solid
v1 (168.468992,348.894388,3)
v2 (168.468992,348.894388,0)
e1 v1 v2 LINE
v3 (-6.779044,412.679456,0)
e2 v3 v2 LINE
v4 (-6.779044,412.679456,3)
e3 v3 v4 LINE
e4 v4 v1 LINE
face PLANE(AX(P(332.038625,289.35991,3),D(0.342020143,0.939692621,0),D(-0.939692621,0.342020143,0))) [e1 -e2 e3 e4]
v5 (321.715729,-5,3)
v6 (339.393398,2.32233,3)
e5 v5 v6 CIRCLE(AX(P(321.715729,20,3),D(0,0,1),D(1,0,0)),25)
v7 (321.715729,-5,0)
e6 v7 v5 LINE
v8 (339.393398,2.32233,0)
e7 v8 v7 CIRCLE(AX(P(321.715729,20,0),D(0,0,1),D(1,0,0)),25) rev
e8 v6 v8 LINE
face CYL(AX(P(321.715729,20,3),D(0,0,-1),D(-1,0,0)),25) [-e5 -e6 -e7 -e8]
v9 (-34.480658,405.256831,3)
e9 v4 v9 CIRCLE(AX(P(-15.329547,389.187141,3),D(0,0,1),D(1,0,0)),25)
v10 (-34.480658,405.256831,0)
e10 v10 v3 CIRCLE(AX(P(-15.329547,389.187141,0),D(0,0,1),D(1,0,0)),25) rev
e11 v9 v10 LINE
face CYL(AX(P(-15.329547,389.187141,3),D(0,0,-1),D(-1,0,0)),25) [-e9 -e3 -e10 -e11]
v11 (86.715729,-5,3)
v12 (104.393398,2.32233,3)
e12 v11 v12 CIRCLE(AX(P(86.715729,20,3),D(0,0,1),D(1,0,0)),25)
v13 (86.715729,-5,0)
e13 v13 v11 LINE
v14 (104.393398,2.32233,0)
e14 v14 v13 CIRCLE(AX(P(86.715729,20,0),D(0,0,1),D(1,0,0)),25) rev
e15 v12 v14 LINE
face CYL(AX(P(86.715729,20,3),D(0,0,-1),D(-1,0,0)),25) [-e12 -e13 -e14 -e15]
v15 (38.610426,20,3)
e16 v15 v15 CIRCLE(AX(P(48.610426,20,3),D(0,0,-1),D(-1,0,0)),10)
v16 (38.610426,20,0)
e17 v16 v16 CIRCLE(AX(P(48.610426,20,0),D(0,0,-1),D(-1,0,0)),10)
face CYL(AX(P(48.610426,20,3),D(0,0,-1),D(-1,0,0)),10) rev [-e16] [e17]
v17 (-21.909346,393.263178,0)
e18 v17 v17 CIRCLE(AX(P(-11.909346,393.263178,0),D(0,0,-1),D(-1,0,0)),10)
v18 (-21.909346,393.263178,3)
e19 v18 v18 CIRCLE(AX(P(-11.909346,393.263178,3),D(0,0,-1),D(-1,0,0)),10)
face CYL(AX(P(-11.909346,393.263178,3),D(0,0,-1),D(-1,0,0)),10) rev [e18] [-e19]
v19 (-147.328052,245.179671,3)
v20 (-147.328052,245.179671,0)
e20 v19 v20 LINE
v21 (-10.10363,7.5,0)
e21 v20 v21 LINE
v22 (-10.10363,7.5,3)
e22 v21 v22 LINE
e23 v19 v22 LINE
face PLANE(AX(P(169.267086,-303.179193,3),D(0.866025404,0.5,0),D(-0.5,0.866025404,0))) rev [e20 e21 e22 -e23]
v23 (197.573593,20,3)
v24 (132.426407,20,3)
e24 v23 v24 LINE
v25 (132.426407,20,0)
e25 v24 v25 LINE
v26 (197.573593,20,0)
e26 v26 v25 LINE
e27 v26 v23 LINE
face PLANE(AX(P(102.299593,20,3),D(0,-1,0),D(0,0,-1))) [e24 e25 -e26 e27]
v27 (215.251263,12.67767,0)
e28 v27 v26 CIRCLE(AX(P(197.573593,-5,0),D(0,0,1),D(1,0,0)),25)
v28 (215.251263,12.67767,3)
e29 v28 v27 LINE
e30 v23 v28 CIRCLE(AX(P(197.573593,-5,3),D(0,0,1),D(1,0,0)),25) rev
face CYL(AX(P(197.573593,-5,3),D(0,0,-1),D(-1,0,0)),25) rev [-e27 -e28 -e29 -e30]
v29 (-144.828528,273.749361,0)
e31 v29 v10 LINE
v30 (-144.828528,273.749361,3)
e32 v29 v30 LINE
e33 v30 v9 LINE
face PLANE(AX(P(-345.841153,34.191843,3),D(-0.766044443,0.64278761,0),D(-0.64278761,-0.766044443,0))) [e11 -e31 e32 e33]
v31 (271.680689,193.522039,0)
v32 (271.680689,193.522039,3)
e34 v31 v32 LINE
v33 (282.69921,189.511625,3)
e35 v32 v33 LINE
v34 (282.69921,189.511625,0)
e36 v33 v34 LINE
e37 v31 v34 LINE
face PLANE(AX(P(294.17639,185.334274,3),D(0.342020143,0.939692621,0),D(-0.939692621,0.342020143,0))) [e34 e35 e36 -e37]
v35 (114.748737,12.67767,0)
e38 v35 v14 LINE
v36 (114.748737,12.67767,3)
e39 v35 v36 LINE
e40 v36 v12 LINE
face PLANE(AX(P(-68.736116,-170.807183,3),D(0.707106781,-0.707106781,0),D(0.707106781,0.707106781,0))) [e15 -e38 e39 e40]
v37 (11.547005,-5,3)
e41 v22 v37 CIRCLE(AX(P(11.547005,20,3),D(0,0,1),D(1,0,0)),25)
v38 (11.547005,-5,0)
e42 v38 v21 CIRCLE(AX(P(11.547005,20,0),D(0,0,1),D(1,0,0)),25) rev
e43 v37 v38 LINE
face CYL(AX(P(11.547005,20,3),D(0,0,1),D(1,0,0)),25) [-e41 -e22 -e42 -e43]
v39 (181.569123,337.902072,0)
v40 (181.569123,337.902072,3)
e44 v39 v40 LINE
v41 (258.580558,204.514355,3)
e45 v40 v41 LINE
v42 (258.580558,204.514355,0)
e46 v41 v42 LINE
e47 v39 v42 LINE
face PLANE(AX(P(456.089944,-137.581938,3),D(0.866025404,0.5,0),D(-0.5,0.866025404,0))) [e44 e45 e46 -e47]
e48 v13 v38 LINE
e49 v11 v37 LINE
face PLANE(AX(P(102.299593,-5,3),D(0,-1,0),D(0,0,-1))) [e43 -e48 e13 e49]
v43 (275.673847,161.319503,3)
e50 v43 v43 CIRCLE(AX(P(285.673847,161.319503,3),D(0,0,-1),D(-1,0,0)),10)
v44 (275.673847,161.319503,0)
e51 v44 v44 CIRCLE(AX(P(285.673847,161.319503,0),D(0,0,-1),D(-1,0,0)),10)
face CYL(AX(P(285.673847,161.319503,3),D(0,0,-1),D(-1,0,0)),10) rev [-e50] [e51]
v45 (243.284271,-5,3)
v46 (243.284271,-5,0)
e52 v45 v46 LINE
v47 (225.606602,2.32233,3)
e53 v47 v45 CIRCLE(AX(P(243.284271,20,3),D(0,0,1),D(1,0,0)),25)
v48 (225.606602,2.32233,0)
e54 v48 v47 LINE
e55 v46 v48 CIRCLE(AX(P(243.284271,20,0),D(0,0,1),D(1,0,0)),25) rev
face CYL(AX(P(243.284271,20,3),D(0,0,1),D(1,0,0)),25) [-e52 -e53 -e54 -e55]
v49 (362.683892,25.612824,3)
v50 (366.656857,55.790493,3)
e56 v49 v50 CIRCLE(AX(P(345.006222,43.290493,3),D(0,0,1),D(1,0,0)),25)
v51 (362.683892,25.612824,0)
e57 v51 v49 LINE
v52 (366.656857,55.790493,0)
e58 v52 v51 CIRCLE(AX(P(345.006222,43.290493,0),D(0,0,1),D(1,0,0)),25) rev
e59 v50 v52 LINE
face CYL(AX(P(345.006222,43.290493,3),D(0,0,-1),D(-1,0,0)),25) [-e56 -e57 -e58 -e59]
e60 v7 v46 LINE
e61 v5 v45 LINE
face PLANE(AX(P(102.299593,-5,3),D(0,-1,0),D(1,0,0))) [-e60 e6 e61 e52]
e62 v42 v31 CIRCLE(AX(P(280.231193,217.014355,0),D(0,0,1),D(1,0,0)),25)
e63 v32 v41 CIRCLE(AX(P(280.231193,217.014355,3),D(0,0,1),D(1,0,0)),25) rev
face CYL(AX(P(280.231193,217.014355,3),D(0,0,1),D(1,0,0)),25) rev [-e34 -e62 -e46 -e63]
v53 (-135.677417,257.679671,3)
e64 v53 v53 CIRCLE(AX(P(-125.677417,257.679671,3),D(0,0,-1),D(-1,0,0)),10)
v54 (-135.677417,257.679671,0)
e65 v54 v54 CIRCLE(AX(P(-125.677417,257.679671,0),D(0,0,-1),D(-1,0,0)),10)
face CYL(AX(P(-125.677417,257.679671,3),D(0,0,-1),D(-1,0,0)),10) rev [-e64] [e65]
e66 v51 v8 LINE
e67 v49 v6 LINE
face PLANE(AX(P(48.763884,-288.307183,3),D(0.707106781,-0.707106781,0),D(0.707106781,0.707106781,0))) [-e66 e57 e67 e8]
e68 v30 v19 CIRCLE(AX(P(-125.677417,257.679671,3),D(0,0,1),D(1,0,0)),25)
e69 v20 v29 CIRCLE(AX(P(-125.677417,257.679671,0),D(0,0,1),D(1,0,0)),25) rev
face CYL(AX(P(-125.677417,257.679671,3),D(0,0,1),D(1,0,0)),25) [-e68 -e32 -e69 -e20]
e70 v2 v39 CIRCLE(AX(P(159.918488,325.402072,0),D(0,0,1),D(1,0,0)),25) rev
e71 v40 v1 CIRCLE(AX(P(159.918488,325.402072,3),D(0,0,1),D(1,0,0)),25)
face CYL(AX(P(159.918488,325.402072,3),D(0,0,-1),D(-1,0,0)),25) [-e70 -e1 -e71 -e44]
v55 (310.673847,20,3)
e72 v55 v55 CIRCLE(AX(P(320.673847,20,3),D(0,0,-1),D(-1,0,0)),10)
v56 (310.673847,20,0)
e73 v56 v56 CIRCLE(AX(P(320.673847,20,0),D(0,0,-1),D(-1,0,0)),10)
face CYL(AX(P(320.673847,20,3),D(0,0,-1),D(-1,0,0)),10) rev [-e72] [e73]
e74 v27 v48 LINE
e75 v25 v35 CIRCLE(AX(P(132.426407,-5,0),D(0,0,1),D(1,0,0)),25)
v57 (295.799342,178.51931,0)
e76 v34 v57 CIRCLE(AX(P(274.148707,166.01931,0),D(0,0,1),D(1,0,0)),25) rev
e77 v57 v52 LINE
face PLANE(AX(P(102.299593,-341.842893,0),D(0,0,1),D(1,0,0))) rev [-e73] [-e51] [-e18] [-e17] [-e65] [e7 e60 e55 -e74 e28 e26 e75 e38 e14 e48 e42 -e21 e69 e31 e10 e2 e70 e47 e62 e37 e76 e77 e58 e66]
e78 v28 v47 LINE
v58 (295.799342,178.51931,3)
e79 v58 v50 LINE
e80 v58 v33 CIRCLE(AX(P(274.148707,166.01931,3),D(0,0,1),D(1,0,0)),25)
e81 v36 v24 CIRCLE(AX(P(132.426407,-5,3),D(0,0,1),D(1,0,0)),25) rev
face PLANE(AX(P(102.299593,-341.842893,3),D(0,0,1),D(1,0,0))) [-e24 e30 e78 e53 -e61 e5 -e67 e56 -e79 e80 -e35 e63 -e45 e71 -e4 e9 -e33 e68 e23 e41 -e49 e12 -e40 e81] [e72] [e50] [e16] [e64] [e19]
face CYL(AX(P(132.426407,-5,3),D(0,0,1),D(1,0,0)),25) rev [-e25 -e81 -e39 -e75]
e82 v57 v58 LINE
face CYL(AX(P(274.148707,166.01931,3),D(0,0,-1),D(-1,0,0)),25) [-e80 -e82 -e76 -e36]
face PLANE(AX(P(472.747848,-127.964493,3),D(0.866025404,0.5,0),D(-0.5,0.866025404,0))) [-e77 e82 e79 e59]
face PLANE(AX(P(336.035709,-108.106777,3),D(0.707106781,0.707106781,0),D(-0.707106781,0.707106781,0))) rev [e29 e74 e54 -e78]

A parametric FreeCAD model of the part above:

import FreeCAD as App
import Part
import Sketcher
Q = App.Units.Quantity


def edges_at(feature, points):
    """Names of the edges that pass closest to the given points."""
    edges = feature.Shape.Edges
    near = lambda p: min(range(len(edges)), key=lambda i: edges[i].distToShape(Part.Vertex(*p))[0])
    return sorted({f"Edge{near(p) + 1}" for p in points})

doc = App.newDocument("Part")
body = doc.addObject("PartDesign::Body", "Body")

# Sketch on XY plane
sketch1 = body.newObject("Sketcher::SketchObject", "Sketch")
sketch1.AttachmentSupport = (doc.getObject("XY_Plane"), [""])
sketch1.MapMode = "FlatFace"
sketch1.addGeometry([
    Part.LineSegment(App.Vector(170, 348, 0), App.Vector(-18, 417, 0)),  # 0
    Part.LineSegment(App.Vector(-18, 417, 0), App.Vector(-23, 419, 0)),  # 1
    Part.LineSegment(App.Vector(-23, 419, 0), App.Vector(-156, 260, 0)),  # 2
    Part.LineSegment(App.Vector(-156, 260, 0), App.Vector(-3, -5, 0)),  # 3
    Part.LineSegment(App.Vector(-3, -5, 0), App.Vector(97, -5, 0)),  # 4
    Part.LineSegment(App.Vector(97, -5, 0), App.Vector(122, 20, 0)),  # 5
    Part.LineSegment(App.Vector(122, 20, 0), App.Vector(208, 20, 0)),  # 6
    Part.LineSegment(App.Vector(208, 20, 0), App.Vector(233, -5, 0)),  # 7
    Part.LineSegment(App.Vector(233, -5, 0), App.Vector(332, -5, 0)),  # 8
    Part.LineSegment(App.Vector(332, -5, 0), App.Vector(376, 39, 0)),  # 9
    Part.LineSegment(App.Vector(376, 39, 0), App.Vector(291, 186, 0)),  # 10
    Part.LineSegment(App.Vector(291, 186, 0), App.Vector(263, 197, 0)),  # 11
    Part.LineSegment(App.Vector(263, 197, 0), App.Vector(177, 346, 0)),  # 12
    Part.LineSegment(App.Vector(177, 346, 0), App.Vector(170, 348, 0)),  # 13
], False)
sketch1.addConstraint([
    Sketcher.Constraint("Coincident", 0, 2, 1, 1),
    Sketcher.Constraint("Coincident", 1, 2, 2, 1),
    Sketcher.Constraint("Coincident", 2, 2, 3, 1),
    Sketcher.Constraint("Coincident", 3, 2, 4, 1),
    Sketcher.Constraint("Coincident", 4, 2, 5, 1),
    Sketcher.Constraint("Coincident", 5, 2, 6, 1),
    Sketcher.Constraint("Coincident", 6, 2, 7, 1),
    Sketcher.Constraint("Coincident", 7, 2, 8, 1),
    Sketcher.Constraint("Coincident", 8, 2, 9, 1),
    Sketcher.Constraint("Coincident", 9, 2, 10, 1),
    Sketcher.Constraint("Coincident", 10, 2, 11, 1),
    Sketcher.Constraint("Coincident", 11, 2, 12, 1),
    Sketcher.Constraint("Coincident", 12, 2, 13, 1),
    Sketcher.Constraint("Coincident", 13, 2, 0, 1),
    Sketcher.Constraint("Horizontal", 4),
    Sketcher.Constraint("Horizontal", 6),
    Sketcher.Constraint("Horizontal", 8),
    Sketcher.Constraint("Parallel", 0, 1),
    Sketcher.Constraint("Perpendicular", 5, 7),
    Sketcher.Constraint("Perpendicular", 7, 9),
    Sketcher.Constraint("Parallel", 3, 10),
    Sketcher.Constraint("Parallel", 1, 11),
    Sketcher.Constraint("Parallel", 10, 12),
    Sketcher.Constraint("Parallel", 11, 13),
    Sketcher.Constraint("Horizontal", 4, 2, 7, 2),
    Sketcher.Constraint("Equal", 5, 7),
    Sketcher.Constraint("Angle", 0, Q("160 deg")),
    Sketcher.Constraint("Angle", 2, Q("-130 deg")),
    Sketcher.Constraint("Angle", 3, Q("-60 deg")),
    Sketcher.Constraint("Distance", 0, Q("200 mm")),
    Sketcher.Constraint("DistanceY", 3, 2, -1, 1, Q("5 mm")),
    Sketcher.Constraint("DistanceY", -1, 1, 5, 2, Q("20 mm")),
    Sketcher.Constraint("DistanceX", 1, 2, 0, 2, Q("5 mm")),
    Sketcher.Constraint("DistanceX", 5, 2, 8, 2, Q("210 mm")),
    Sketcher.Constraint("DistanceX", 4, 1, 4, 2, Q("99.957819 mm")),
    Sketcher.Constraint("DistanceX", 13, 2, 11, 2, Q("93.420201 mm")),
    Sketcher.Constraint("Distance", 3, Q("306.387789 mm")),
    Sketcher.Constraint("Distance", 10, Q("169.997461 mm")),
    Sketcher.Constraint("Distance", 12, Q("172.221381 mm")),
    Sketcher.Constraint("DistanceX", 6, 1, 6, 2, Q("85.857864 mm")),
    Sketcher.Constraint("DistanceX", 0, 2, -1, 1, Q("18.22854 mm")),
    Sketcher.Constraint("DistanceY", -1, 1, 0, 2, Q("416.846732 mm")),
])
pad1 = body.newObject("PartDesign::Pad", "Pad")
pad1.Profile = sketch1
pad1.Length = 3
doc.recompute()

fillet = body.newObject("PartDesign::Fillet", "Fillet")
fillet.Base = (pad1, edges_at(pad1, [
    (177.019, 345.782, 1.5),
    (263.13, 196.634, 1.5),
    (291.25, 186.399, 1.5),
    (376.248, 39.177, 1.5),
    (332.071, -5, 1.5),
    (232.929, -5, 1.5),
    (207.929, 20, 1.5),
    (122.071, 20, 1.5),
    (97.071, -5, 1.5),
    (-2.887, -5, 1.5),
    (-156.081, 260.34, 1.5),
    (-23.229, 418.667, 1.5),
]))
fillet.Radius = 25

# Sketch on XY plane
sketch2 = body.newObject("Sketcher::SketchObject", "Sketch001")
sketch2.AttachmentSupport = (doc.getObject("XY_Plane"), [""])
sketch2.MapMode = "FlatFace"
sketch2.addGeometry([
    Part.Circle(App.Vector(-12, 393, 0), App.Vector(0, 0, 1), 10),  # 0
    Part.Circle(App.Vector(-126, 258, 0), App.Vector(0, 0, 1), 10),  # 1
    Part.Circle(App.Vector(49, 20, 0), App.Vector(0, 0, 1), 10),  # 2
    Part.Circle(App.Vector(321, 20, 0), App.Vector(0, 0, 1), 10),  # 3
    Part.Circle(App.Vector(286, 161, 0), App.Vector(0, 0, 1), 10),  # 4
], False)
sketch2.addConstraint([
    Sketcher.Constraint("Equal", 0, 1),
    Sketcher.Constraint("Equal", 1, 2),
    Sketcher.Constraint("Equal", 2, 3),
    Sketcher.Constraint("Equal", 3, 4),
    Sketcher.Constraint("Horizontal", 2, 3, 3, 3),
    Sketcher.Constraint("Diameter", 0, Q("20 mm")),
    Sketcher.Constraint("DistanceY", -1, 1, 2, 3, Q("20 mm")),
    Sketcher.Constraint("DistanceX", 4, 3, 3, 3, Q("35 mm")),
    Sketcher.Constraint("DistanceY", -1, 1, 1, 3, Q("257.679671 mm")),
    Sketcher.Constraint("DistanceX", 1, 3, 0, 3, Q("113.768071 mm")),
    Sketcher.Constraint("DistanceX", 0, 3, 2, 3, Q("60.519772 mm")),
    Sketcher.Constraint("DistanceX", 2, 3, 3, 3, Q("272.063421 mm")),
    Sketcher.Constraint("DistanceY", 4, 3, 1, 3, Q("96.360168 mm")),
    Sketcher.Constraint("DistanceX", 0, 3, -1, 1, Q("11.909346 mm")),
    Sketcher.Constraint("DistanceY", -1, 1, 0, 3, Q("393.263178 mm")),
])
pocket1 = body.newObject("PartDesign::Pocket", "Pocket")
pocket1.Profile = sketch2
pocket1.Type = "ThroughAll"
pocket1.Reversed = True

doc.recompute()
